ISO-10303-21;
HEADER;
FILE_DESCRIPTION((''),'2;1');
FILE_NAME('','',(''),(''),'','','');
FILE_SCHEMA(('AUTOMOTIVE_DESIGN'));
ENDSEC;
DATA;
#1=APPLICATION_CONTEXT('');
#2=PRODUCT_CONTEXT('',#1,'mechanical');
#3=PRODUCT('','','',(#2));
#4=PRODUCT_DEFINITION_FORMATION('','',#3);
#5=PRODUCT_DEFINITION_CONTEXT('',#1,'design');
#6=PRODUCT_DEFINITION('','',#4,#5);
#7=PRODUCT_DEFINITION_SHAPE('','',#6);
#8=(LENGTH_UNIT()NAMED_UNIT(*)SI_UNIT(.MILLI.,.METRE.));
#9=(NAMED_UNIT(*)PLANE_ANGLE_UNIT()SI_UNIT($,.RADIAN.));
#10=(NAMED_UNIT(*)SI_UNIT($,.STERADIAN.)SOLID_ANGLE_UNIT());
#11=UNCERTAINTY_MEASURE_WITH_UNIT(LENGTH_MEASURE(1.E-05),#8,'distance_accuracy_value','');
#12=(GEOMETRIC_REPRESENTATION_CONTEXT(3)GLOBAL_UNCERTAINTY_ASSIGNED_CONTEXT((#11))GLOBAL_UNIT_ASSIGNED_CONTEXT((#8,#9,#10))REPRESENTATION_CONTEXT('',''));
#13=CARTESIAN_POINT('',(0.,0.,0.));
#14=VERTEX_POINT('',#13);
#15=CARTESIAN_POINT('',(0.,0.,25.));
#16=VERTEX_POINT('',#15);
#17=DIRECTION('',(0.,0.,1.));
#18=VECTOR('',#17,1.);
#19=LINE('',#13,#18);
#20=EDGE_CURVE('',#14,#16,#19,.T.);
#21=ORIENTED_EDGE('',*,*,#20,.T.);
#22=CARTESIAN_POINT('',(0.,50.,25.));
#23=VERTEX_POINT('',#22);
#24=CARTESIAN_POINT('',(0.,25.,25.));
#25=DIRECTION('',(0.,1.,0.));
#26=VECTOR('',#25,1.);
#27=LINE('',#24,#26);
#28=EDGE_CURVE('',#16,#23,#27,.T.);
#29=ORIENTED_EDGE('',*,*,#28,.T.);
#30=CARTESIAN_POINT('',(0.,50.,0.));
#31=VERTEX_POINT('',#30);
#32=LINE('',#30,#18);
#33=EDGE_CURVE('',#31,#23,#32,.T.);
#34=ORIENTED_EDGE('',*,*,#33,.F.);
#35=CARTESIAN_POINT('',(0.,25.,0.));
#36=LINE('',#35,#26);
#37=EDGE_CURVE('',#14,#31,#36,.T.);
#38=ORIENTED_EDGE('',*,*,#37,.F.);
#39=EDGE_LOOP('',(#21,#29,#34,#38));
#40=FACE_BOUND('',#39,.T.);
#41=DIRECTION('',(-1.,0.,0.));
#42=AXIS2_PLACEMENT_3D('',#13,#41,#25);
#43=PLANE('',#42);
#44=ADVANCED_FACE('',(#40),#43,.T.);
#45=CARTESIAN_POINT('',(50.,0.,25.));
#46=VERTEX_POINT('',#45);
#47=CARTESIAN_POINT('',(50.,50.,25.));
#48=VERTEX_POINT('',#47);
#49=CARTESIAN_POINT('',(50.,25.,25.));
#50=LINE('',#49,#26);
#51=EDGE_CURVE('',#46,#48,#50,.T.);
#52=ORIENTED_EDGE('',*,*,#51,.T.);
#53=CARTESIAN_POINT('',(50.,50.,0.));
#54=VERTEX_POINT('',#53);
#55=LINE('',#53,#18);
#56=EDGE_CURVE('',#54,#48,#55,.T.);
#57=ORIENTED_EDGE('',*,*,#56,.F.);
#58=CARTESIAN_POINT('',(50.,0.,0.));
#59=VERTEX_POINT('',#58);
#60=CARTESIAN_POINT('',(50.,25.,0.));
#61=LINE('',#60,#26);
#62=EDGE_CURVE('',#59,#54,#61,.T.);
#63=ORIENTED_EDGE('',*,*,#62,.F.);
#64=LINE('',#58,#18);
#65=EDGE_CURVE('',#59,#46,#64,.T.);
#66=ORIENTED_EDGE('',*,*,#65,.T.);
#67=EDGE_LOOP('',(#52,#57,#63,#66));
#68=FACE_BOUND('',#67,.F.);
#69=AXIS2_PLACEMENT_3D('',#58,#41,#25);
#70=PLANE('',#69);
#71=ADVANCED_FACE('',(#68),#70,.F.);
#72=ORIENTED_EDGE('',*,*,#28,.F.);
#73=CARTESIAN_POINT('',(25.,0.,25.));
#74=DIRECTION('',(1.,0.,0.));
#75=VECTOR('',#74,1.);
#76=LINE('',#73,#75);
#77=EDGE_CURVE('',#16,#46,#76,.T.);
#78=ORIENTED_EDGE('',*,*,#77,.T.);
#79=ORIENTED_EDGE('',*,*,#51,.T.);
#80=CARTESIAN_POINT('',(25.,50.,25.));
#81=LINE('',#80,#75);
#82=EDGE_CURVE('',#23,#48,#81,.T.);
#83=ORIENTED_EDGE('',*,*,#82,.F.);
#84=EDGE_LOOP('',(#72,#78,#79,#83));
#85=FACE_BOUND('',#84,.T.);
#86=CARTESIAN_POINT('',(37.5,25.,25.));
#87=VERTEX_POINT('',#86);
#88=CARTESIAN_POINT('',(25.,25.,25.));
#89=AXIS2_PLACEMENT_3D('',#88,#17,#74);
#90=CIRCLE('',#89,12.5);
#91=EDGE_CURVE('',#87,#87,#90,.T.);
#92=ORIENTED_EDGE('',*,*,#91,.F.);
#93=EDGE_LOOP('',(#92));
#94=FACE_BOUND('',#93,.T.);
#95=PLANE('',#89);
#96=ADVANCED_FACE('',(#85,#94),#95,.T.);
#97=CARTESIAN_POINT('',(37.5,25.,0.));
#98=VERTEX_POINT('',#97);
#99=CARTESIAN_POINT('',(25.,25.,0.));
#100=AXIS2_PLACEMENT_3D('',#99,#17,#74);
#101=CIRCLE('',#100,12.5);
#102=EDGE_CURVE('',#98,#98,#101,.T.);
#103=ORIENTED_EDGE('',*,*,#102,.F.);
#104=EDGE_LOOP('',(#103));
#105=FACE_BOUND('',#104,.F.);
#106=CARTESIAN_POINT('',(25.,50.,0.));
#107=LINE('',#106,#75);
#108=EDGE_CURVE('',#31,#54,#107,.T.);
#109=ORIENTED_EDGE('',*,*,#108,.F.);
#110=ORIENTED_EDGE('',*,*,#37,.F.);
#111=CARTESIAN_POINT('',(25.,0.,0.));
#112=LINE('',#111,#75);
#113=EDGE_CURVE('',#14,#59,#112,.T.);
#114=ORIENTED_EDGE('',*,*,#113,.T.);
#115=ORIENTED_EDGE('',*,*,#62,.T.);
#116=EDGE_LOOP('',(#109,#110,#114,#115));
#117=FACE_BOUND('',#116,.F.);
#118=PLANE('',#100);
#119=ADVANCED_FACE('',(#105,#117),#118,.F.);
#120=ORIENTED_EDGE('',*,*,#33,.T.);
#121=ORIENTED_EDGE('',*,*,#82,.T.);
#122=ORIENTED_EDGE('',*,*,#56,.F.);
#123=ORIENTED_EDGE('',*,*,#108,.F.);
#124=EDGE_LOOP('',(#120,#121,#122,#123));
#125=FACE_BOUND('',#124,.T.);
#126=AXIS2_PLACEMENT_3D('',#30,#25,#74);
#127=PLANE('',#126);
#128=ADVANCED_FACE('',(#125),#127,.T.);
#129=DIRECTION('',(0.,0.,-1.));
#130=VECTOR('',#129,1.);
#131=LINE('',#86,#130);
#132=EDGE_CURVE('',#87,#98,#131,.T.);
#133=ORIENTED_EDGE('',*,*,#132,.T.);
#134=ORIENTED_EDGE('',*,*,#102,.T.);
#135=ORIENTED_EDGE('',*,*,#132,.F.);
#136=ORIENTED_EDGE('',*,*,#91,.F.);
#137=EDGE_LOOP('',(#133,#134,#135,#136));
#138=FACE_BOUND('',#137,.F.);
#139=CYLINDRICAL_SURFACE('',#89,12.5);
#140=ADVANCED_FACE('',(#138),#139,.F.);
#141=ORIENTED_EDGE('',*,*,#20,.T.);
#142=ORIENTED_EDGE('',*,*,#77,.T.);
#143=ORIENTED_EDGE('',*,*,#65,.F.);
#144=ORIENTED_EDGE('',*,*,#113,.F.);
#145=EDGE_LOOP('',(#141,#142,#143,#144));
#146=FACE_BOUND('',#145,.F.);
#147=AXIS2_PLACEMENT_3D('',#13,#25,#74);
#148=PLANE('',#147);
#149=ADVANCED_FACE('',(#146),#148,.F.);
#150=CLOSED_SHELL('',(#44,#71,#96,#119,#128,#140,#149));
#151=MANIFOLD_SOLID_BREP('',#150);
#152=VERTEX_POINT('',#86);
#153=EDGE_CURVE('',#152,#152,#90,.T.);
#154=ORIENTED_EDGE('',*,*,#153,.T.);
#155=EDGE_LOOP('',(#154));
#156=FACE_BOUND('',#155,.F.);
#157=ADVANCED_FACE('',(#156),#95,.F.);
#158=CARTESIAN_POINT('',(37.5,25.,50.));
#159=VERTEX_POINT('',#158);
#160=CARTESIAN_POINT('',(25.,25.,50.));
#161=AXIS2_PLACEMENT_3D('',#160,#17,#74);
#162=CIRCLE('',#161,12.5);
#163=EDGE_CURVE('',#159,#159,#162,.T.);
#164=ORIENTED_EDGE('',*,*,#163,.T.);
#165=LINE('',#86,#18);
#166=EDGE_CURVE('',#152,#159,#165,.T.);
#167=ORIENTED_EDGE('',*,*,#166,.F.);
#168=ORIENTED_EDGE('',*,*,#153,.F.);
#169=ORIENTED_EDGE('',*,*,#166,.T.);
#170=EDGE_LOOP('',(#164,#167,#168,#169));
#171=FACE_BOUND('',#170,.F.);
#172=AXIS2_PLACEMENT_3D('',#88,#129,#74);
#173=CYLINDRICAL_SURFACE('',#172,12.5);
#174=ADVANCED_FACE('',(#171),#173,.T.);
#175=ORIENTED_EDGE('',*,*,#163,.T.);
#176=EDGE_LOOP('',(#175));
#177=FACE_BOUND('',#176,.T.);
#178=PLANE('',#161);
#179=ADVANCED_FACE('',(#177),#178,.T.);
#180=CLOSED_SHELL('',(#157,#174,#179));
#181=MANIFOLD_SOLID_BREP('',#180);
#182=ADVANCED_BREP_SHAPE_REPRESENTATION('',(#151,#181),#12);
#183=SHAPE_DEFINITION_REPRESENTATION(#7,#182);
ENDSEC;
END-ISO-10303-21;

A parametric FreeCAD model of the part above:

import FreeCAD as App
import Part
import Sketcher

doc = App.newDocument("Part")
body = doc.addObject("PartDesign::Body", "Body")

sketch1 = body.newObject("Sketcher::SketchObject", "Sketch")
sketch1.AttachmentSupport = (doc.getObject("XY_Plane"), [""])
sketch1.MapMode = "FlatFace"
sketch1.addGeometry([
    Part.LineSegment(App.Vector(0, 50, 0), App.Vector(0, 0, 0)),
    Part.LineSegment(App.Vector(0, 0, 0), App.Vector(50, 0, 0)),
    Part.LineSegment(App.Vector(50, 0, 0), App.Vector(50, 50, 0)),
    Part.LineSegment(App.Vector(50, 50, 0), App.Vector(0, 50, 0)),
], False)
sketch1.addConstraint([
    Sketcher.Constraint("Coincident", 0, 2, 1, 1),
    Sketcher.Constraint("Coincident", 1, 2, 2, 1),
    Sketcher.Constraint("Coincident", 2, 2, 3, 1),
    Sketcher.Constraint("Coincident", 3, 2, 0, 1),
    Sketcher.Constraint("Vertical", 0),
    Sketcher.Constraint("Horizontal", 1),
    Sketcher.Constraint("Vertical", 2),
    Sketcher.Constraint("Horizontal", 3),
    Sketcher.Constraint("Coincident", 0, 2, -1, 1),
    Sketcher.Constraint("Equal", 3, 0),
    Sketcher.Constraint("DistanceX", 1, 1, 1, 2, 50.0),
])
pad1 = body.newObject("PartDesign::Pad", "Pad")
pad1.Profile = sketch1
pad1.Length = 25

sketch2 = body.newObject("Sketcher::SketchObject", "Sketch001")
sketch2.AttachmentSupport = (doc.getObject("XY_Plane"), [""])
sketch2.MapMode = "FlatFace"
sketch2.AttachmentOffset = App.Placement(App.Vector(0, 0, 25), App.Rotation())
sketch2.addGeometry(Part.Circle(App.Vector(25, 25, 0), App.Vector(0, 0, 1), 12), False)
sketch2.addConstraint([
    Sketcher.Constraint("Diameter", 0, 25.0),
    Sketcher.Constraint("DistanceX", -1, 1, 0, 3, 25.0),
    Sketcher.Constraint("DistanceY", -1, 1, 0, 3, 25.0),
])
pocket1 = body.newObject("PartDesign::Pocket", "Pocket")
pocket1.Profile = sketch2
pocket1.Length = 25
body2 = doc.addObject("PartDesign::Body", "Body001")

sketch3 = body2.newObject("Sketcher::SketchObject", "Sketch002")
sketch3.AttachmentSupport = (doc.getObject("XY_Plane001"), [""])
sketch3.MapMode = "FlatFace"
sketch3.AttachmentOffset = App.Placement(App.Vector(0, 0, 25), App.Rotation())
sketch3.addGeometry(Part.Circle(App.Vector(25, 25, 0), App.Vector(0, 0, 1), 12), False)
sketch3.addConstraint([
    Sketcher.Constraint("Diameter", 0, 25.0),
    Sketcher.Constraint("DistanceX", -1, 1, 0, 3, 25.0),
    Sketcher.Constraint("DistanceY", -1, 1, 0, 3, 25.0),
])
pad2 = body2.newObject("PartDesign::Pad", "Pad001")
pad2.Profile = sketch3
pad2.Length = 25

doc.recompute()
